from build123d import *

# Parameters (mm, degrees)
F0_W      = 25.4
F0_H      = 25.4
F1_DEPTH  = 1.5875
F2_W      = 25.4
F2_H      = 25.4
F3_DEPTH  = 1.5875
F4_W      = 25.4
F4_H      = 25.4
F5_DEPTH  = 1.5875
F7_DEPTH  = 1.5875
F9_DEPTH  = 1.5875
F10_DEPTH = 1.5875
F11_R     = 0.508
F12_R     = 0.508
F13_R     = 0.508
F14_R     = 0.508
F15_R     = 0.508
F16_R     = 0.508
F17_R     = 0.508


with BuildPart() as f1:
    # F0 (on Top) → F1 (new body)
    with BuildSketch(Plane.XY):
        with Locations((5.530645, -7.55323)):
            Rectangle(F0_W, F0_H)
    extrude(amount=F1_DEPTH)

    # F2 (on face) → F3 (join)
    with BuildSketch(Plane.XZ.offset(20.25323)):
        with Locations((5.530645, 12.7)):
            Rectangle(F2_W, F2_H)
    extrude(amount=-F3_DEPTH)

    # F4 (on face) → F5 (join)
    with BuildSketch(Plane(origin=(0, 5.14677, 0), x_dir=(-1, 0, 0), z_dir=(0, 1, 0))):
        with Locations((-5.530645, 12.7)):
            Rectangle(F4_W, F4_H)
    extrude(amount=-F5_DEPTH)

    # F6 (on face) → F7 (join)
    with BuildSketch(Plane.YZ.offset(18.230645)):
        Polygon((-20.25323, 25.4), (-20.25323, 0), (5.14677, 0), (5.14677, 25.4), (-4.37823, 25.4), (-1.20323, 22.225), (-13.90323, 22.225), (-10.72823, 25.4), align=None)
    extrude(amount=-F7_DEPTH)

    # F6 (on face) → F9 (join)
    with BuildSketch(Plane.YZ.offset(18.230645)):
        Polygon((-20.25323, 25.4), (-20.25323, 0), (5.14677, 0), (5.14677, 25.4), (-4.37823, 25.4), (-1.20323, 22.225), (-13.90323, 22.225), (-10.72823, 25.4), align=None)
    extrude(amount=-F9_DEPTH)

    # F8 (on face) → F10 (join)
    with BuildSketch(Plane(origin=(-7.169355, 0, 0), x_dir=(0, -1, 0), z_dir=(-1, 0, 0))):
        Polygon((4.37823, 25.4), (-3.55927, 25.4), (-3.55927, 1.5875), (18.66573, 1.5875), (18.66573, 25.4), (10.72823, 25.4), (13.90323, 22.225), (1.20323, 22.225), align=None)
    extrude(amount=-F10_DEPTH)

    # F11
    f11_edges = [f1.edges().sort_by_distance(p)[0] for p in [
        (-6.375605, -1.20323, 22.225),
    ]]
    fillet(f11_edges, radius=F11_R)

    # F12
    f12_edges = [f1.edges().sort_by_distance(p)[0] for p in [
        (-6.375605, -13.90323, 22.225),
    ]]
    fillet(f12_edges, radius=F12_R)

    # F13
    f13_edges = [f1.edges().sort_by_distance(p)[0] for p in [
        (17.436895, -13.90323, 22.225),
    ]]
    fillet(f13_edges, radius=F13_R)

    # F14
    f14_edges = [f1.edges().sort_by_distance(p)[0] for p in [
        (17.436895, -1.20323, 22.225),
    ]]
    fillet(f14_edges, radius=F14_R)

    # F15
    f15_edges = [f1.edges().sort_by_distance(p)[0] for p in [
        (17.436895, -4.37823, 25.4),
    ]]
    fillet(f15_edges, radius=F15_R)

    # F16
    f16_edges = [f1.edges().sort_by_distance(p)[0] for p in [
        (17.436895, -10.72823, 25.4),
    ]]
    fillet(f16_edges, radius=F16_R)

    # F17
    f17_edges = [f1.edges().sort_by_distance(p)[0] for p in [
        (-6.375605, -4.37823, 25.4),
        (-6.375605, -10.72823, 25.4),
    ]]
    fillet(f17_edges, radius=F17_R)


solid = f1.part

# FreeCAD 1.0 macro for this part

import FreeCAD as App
import Part
import Sketcher

V = App.Vector
Q = App.Units.Quantity


def edges_at(feature, points):
    """Names of the edges that pass closest to the given points."""
    edges = feature.Shape.Edges
    near = lambda p: min(range(len(edges)), key=lambda i: edges[i].distToShape(Part.Vertex(*p))[0])
    return sorted({f"Edge{near(p) + 1}" for p in points})


def add_polygon(sketch, points):
    """Adds a closed chain of lines whose ends are joined by coincident constraints."""
    first, n = sketch.GeometryCount, len(points)
    for a, b in zip(points, points[1:] + points[:1]):
        sketch.addGeometry(Part.LineSegment(App.Vector(*a, 0), App.Vector(*b, 0)), False)
    for i in range(n):
        sketch.addConstraint(Sketcher.Constraint("Coincident", first + i, 2, first + (i + 1) % n, 1))

doc = App.newDocument("Part")
params = doc.addObject("Spreadsheet::Sheet", "Params")
for row, (alias, value) in enumerate([
    ("sketch1_width", "1 in"),
    ("pad1_length", "0.0625 in"),
    ("sketch2_width", "1 in"),
    ("pad2_length", "0.0625 in"),
    ("sketch3_width", "1 in"),
    ("pad3_length", "0.0625 in"),
    ("sketch4_width", "1 in"),
    ("sketch4_width2", "0.5 in"),
    ("sketch4_width3", "0.375 in"),
    ("pad4_length", "0.0625 in"),
    ("sketch5_width", "1 in"),
    ("sketch5_width2", "0.5 in"),
    ("sketch5_width3", "0.375 in"),
    ("pad5_length", "0.0625 in"),
    ("sketch6_width", "0.5 in"),
    ("sketch6_width2", "0.3125 in"),
    ("sketch6_width3", "0.875 in"),
    ("sketch6_height", "0.9375 in"),
    ("pad6_length", "0.0625 in"),
    ("fillet_radius", "0.02 in"),
    ("fillet2_radius", "0.02 in"),
    ("fillet3_radius", "0.02 in"),
    ("fillet4_radius", "0.02 in"),
    ("fillet5_radius", "0.02 in"),
    ("fillet6_radius", "0.02 in"),
    ("fillet7_radius", "0.02 in"),
], start=1):
    params.set(f"A{row}", alias)
    params.set(f"B{row}", "=" + value)
    params.setAlias(f"B{row}", alias)

body = doc.addObject("PartDesign::Body", "Body")

sketch1 = body.newObject("Sketcher::SketchObject", "Sketch")
sketch1.AttachmentSupport = (doc.getObject("XY_Plane"), [""])
sketch1.MapMode = "FlatFace"
add_polygon(sketch1, [(-7, 5), (-7, -20), (18, -20), (18, 5)])
sketch1.addConstraint([
    Sketcher.Constraint("Vertical", 0),
    Sketcher.Constraint("Horizontal", 1),
    Sketcher.Constraint("Vertical", 2),
    Sketcher.Constraint("Horizontal", 3),
    Sketcher.Constraint("Equal", 3, 0),
    Sketcher.Constraint("DistanceX", 1, 1, 1, 2, Q("1 in")),
    Sketcher.Constraint("DistanceY", 0, 2, -1, 1, Q("20.25323 mm")),
    Sketcher.Constraint("DistanceX", 0, 2, -1, 1, Q("7.169355 mm")),
])
sketch1.setExpression("Constraints[9]", "Params.sketch1_width")
pad1 = body.newObject("PartDesign::Pad", "Pad")
pad1.Profile = sketch1
pad1.setExpression("Length", "Params.pad1_length")

sketch2 = body.newObject("Sketcher::SketchObject", "Sketch001")
sketch2.AttachmentSupport = (doc.getObject("XZ_Plane"), [""])
sketch2.MapMode = "FlatFace"
sketch2.AttachmentOffset = App.Placement(V(0, 0, 20.25323), App.Rotation())
add_polygon(sketch2, [(-7, 25), (-7, 0), (18, 0), (18, 25)])
sketch2.addConstraint([
    Sketcher.Constraint("Vertical", 0),
    Sketcher.Constraint("Horizontal", 1),
    Sketcher.Constraint("Vertical", 2),
    Sketcher.Constraint("Horizontal", 3),
    Sketcher.Constraint("PointOnObject", 0, 2, -1),
    Sketcher.Constraint("Equal", 3, 0),
    Sketcher.Constraint("DistanceX", 1, 1, 1, 2, Q("1 in")),
    Sketcher.Constraint("DistanceX", 0, 2, -1, 1, Q("7.169355 mm")),
])
sketch2.setExpression("Constraints[10]", "Params.sketch2_width")
pad2 = body.newObject("PartDesign::Pad", "Pad001")
pad2.Profile = sketch2
pad2.setExpression("Length", "Params.pad2_length")
pad2.Reversed = True

sketch3 = body.newObject("Sketcher::SketchObject", "Sketch002")
sketch3.AttachmentSupport = (doc.getObject("XZ_Plane"), [""])
sketch3.MapMode = "FlatFace"
sketch3.AttachmentOffset = App.Placement(V(0, 0, -5.14677), App.Rotation())
add_polygon(sketch3, [(18, 25), (18, 0), (-7, 0), (-7, 25)])
sketch3.addConstraint([
    Sketcher.Constraint("Vertical", 0),
    Sketcher.Constraint("Horizontal", 1),
    Sketcher.Constraint("Vertical", 2),
    Sketcher.Constraint("Horizontal", 3),
    Sketcher.Constraint("PointOnObject", 0, 2, -1),
    Sketcher.Constraint("Equal", 3, 0),
    Sketcher.Constraint("DistanceX", 1, 2, 1, 1, Q("1 in")),
    Sketcher.Constraint("DistanceX", -1, 1, 0, 2, Q("18.230645 mm")),
])
sketch3.setExpression("Constraints[10]", "Params.sketch3_width")
pad3 = body.newObject("PartDesign::Pad", "Pad002")
pad3.Profile = sketch3
pad3.setExpression("Length", "Params.pad3_length")

sketch4 = body.newObject("Sketcher::SketchObject", "Sketch003")
sketch4.AttachmentSupport = (doc.getObject("YZ_Plane"), [""])
sketch4.MapMode = "FlatFace"
sketch4.AttachmentOffset = App.Placement(V(0, 0, 18.230645), App.Rotation())
add_polygon(sketch4, [(-20.3, 25.4), (-20.3, 0), (5.1, 0), (5.1, 25.4), (-4.4, 25.4), (-1.2, 22.2), (-13.9, 22.2), (-10.7, 25.4)])
sketch4.addConstraint([
    Sketcher.Constraint("Vertical", 0),
    Sketcher.Constraint("Horizontal", 1),
    Sketcher.Constraint("Vertical", 2),
    Sketcher.Constraint("Horizontal", 3),
    Sketcher.Constraint("Horizontal", 5),
    Sketcher.Constraint("Horizontal", 7),
    Sketcher.Constraint("PointOnObject", 0, 2, -1),
    Sketcher.Constraint("Perpendicular", 4, 6),
    Sketcher.Constraint("Horizontal", 3, 2, 6, 2),
    Sketcher.Constraint("Equal", 3, 7),
    Sketcher.Constraint("Equal", 1, 0),
    Sketcher.Constraint("Equal", 4, 6),
    Sketcher.Constraint("DistanceX", 1, 1, 1, 2, Q("1 in")),
    Sketcher.Constraint("DistanceX", 5, 2, 5, 1, Q("0.5 in")),
    Sketcher.Constraint("DistanceX", 3, 2, 3, 1, Q("0.375 in")),
    Sketcher.Constraint("DistanceX", 0, 2, -1, 1, Q("20.25323 mm")),
])
sketch4.setExpression("Constraints[20]", "Params.sketch4_width")
sketch4.setExpression("Constraints[21]", "Params.sketch4_width2")
sketch4.setExpression("Constraints[22]", "Params.sketch4_width3")
pad4 = body.newObject("PartDesign::Pad", "Pad003")
pad4.Profile = sketch4
pad4.setExpression("Length", "Params.pad4_length")
pad4.Reversed = True

sketch5 = body.newObject("Sketcher::SketchObject", "Sketch004")
sketch5.AttachmentSupport = (doc.getObject("YZ_Plane"), [""])
sketch5.MapMode = "FlatFace"
sketch5.AttachmentOffset = App.Placement(V(0, 0, 18.230645), App.Rotation())
add_polygon(sketch5, [(-20.3, 25.4), (-20.3, 0), (5.1, 0), (5.1, 25.4), (-4.4, 25.4), (-1.2, 22.2), (-13.9, 22.2), (-10.7, 25.4)])
sketch5.addConstraint([
    Sketcher.Constraint("Vertical", 0),
    Sketcher.Constraint("Horizontal", 1),
    Sketcher.Constraint("Vertical", 2),
    Sketcher.Constraint("Horizontal", 3),
    Sketcher.Constraint("Horizontal", 5),
    Sketcher.Constraint("Horizontal", 7),
    Sketcher.Constraint("PointOnObject", 0, 2, -1),
    Sketcher.Constraint("Perpendicular", 4, 6),
    Sketcher.Constraint("Horizontal", 3, 2, 6, 2),
    Sketcher.Constraint("Equal", 3, 7),
    Sketcher.Constraint("Equal", 1, 0),
    Sketcher.Constraint("Equal", 4, 6),
    Sketcher.Constraint("DistanceX", 1, 1, 1, 2, Q("1 in")),
    Sketcher.Constraint("DistanceX", 5, 2, 5, 1, Q("0.5 in")),
    Sketcher.Constraint("DistanceX", 3, 2, 3, 1, Q("0.375 in")),
    Sketcher.Constraint("DistanceX", 0, 2, -1, 1, Q("20.25323 mm")),
])
sketch5.setExpression("Constraints[20]", "Params.sketch5_width")
sketch5.setExpression("Constraints[21]", "Params.sketch5_width2")
sketch5.setExpression("Constraints[22]", "Params.sketch5_width3")
pad5 = body.newObject("PartDesign::Pad", "Pad004")
pad5.Profile = sketch5
pad5.setExpression("Length", "Params.pad5_length")
pad5.Reversed = True

sketch6 = body.newObject("Sketcher::SketchObject", "Sketch005")
sketch6.AttachmentSupport = (doc.getObject("YZ_Plane"), [""])
sketch6.MapMode = "FlatFace"
sketch6.AttachmentOffset = App.Placement(V(0, 0, -7.169355), App.Rotation())
add_polygon(sketch6, [(-4.4, 25.4), (3.6, 25.4), (3.6, 1.6), (-18.7, 1.6), (-18.7, 25.4), (-10.7, 25.4), (-13.9, 22.2), (-1.2, 22.2)])
sketch6.addConstraint([
    Sketcher.Constraint("Horizontal", 0),
    Sketcher.Constraint("Vertical", 1),
    Sketcher.Constraint("Horizontal", 2),
    Sketcher.Constraint("Vertical", 3),
    Sketcher.Constraint("Horizontal", 4),
    Sketcher.Constraint("Horizontal", 6),
    Sketcher.Constraint("Perpendicular", 5, 7),
    Sketcher.Constraint("Horizontal", 0, 2, 3, 2),
    Sketcher.Constraint("Equal", 0, 4),
    Sketcher.Constraint("Equal", 5, 7),
    Sketcher.Constraint("DistanceX", 6, 1, 6, 2, Q("0.5 in")),
    Sketcher.Constraint("DistanceY", -1, 1, 0, 2, Q("1 in")),
    Sketcher.Constraint("DistanceX", 0, 1, 0, 2, Q("0.3125 in")),
    Sketcher.Constraint("DistanceX", 2, 2, 2, 1, Q("0.875 in")),
    Sketcher.Constraint("DistanceY", 1, 2, 1, 1, Q("0.9375 in")),
    Sketcher.Constraint("DistanceX", -1, 1, 0, 2, Q("3.55927 mm")),
])
sketch6.setExpression("Constraints[18]", "Params.sketch6_width")
sketch6.setExpression("Constraints[20]", "Params.sketch6_width2")
sketch6.setExpression("Constraints[21]", "Params.sketch6_width3")
sketch6.setExpression("Constraints[22]", "Params.sketch6_height")
pad6 = body.newObject("PartDesign::Pad", "Pad005")
pad6.Profile = sketch6
pad6.setExpression("Length", "Params.pad6_length")
doc.recompute()

fillet = body.newObject("PartDesign::Fillet", "Fillet")
fillet.Base = (pad6, edges_at(pad6, [(-6.376, -1.203, 22.225)]))
fillet.setExpression("Radius", "Params.fillet_radius")
doc.recompute()

fillet2 = body.newObject("PartDesign::Fillet", "Fillet001")
fillet2.Base = (fillet, edges_at(fillet, [(-6.376, -13.903, 22.225)]))
fillet2.setExpression("Radius", "Params.fillet2_radius")
doc.recompute()

fillet3 = body.newObject("PartDesign::Fillet", "Fillet002")
fillet3.Base = (fillet2, edges_at(fillet2, [(17.437, -13.903, 22.225)]))
fillet3.setExpression("Radius", "Params.fillet3_radius")
doc.recompute()

fillet4 = body.newObject("PartDesign::Fillet", "Fillet003")
fillet4.Base = (fillet3, edges_at(fillet3, [(17.437, -1.203, 22.225)]))
fillet4.setExpression("Radius", "Params.fillet4_radius")
doc.recompute()

fillet5 = body.newObject("PartDesign::Fillet", "Fillet004")
fillet5.Base = (fillet4, edges_at(fillet4, [(17.437, -4.378, 25.4)]))
fillet5.setExpression("Radius", "Params.fillet5_radius")
doc.recompute()

fillet6 = body.newObject("PartDesign::Fillet", "Fillet005")
fillet6.Base = (fillet5, edges_at(fillet5, [(17.437, -10.728, 25.4)]))
fillet6.setExpression("Radius", "Params.fillet6_radius")
doc.recompute()

fillet7 = body.newObject("PartDesign::Fillet", "Fillet006")
fillet7.Base = (fillet6, edges_at(fillet6, [(-6.376, -4.378, 25.4), (-6.376, -10.728, 25.4)]))
fillet7.setExpression("Radius", "Params.fillet7_radius")

doc.recompute()
